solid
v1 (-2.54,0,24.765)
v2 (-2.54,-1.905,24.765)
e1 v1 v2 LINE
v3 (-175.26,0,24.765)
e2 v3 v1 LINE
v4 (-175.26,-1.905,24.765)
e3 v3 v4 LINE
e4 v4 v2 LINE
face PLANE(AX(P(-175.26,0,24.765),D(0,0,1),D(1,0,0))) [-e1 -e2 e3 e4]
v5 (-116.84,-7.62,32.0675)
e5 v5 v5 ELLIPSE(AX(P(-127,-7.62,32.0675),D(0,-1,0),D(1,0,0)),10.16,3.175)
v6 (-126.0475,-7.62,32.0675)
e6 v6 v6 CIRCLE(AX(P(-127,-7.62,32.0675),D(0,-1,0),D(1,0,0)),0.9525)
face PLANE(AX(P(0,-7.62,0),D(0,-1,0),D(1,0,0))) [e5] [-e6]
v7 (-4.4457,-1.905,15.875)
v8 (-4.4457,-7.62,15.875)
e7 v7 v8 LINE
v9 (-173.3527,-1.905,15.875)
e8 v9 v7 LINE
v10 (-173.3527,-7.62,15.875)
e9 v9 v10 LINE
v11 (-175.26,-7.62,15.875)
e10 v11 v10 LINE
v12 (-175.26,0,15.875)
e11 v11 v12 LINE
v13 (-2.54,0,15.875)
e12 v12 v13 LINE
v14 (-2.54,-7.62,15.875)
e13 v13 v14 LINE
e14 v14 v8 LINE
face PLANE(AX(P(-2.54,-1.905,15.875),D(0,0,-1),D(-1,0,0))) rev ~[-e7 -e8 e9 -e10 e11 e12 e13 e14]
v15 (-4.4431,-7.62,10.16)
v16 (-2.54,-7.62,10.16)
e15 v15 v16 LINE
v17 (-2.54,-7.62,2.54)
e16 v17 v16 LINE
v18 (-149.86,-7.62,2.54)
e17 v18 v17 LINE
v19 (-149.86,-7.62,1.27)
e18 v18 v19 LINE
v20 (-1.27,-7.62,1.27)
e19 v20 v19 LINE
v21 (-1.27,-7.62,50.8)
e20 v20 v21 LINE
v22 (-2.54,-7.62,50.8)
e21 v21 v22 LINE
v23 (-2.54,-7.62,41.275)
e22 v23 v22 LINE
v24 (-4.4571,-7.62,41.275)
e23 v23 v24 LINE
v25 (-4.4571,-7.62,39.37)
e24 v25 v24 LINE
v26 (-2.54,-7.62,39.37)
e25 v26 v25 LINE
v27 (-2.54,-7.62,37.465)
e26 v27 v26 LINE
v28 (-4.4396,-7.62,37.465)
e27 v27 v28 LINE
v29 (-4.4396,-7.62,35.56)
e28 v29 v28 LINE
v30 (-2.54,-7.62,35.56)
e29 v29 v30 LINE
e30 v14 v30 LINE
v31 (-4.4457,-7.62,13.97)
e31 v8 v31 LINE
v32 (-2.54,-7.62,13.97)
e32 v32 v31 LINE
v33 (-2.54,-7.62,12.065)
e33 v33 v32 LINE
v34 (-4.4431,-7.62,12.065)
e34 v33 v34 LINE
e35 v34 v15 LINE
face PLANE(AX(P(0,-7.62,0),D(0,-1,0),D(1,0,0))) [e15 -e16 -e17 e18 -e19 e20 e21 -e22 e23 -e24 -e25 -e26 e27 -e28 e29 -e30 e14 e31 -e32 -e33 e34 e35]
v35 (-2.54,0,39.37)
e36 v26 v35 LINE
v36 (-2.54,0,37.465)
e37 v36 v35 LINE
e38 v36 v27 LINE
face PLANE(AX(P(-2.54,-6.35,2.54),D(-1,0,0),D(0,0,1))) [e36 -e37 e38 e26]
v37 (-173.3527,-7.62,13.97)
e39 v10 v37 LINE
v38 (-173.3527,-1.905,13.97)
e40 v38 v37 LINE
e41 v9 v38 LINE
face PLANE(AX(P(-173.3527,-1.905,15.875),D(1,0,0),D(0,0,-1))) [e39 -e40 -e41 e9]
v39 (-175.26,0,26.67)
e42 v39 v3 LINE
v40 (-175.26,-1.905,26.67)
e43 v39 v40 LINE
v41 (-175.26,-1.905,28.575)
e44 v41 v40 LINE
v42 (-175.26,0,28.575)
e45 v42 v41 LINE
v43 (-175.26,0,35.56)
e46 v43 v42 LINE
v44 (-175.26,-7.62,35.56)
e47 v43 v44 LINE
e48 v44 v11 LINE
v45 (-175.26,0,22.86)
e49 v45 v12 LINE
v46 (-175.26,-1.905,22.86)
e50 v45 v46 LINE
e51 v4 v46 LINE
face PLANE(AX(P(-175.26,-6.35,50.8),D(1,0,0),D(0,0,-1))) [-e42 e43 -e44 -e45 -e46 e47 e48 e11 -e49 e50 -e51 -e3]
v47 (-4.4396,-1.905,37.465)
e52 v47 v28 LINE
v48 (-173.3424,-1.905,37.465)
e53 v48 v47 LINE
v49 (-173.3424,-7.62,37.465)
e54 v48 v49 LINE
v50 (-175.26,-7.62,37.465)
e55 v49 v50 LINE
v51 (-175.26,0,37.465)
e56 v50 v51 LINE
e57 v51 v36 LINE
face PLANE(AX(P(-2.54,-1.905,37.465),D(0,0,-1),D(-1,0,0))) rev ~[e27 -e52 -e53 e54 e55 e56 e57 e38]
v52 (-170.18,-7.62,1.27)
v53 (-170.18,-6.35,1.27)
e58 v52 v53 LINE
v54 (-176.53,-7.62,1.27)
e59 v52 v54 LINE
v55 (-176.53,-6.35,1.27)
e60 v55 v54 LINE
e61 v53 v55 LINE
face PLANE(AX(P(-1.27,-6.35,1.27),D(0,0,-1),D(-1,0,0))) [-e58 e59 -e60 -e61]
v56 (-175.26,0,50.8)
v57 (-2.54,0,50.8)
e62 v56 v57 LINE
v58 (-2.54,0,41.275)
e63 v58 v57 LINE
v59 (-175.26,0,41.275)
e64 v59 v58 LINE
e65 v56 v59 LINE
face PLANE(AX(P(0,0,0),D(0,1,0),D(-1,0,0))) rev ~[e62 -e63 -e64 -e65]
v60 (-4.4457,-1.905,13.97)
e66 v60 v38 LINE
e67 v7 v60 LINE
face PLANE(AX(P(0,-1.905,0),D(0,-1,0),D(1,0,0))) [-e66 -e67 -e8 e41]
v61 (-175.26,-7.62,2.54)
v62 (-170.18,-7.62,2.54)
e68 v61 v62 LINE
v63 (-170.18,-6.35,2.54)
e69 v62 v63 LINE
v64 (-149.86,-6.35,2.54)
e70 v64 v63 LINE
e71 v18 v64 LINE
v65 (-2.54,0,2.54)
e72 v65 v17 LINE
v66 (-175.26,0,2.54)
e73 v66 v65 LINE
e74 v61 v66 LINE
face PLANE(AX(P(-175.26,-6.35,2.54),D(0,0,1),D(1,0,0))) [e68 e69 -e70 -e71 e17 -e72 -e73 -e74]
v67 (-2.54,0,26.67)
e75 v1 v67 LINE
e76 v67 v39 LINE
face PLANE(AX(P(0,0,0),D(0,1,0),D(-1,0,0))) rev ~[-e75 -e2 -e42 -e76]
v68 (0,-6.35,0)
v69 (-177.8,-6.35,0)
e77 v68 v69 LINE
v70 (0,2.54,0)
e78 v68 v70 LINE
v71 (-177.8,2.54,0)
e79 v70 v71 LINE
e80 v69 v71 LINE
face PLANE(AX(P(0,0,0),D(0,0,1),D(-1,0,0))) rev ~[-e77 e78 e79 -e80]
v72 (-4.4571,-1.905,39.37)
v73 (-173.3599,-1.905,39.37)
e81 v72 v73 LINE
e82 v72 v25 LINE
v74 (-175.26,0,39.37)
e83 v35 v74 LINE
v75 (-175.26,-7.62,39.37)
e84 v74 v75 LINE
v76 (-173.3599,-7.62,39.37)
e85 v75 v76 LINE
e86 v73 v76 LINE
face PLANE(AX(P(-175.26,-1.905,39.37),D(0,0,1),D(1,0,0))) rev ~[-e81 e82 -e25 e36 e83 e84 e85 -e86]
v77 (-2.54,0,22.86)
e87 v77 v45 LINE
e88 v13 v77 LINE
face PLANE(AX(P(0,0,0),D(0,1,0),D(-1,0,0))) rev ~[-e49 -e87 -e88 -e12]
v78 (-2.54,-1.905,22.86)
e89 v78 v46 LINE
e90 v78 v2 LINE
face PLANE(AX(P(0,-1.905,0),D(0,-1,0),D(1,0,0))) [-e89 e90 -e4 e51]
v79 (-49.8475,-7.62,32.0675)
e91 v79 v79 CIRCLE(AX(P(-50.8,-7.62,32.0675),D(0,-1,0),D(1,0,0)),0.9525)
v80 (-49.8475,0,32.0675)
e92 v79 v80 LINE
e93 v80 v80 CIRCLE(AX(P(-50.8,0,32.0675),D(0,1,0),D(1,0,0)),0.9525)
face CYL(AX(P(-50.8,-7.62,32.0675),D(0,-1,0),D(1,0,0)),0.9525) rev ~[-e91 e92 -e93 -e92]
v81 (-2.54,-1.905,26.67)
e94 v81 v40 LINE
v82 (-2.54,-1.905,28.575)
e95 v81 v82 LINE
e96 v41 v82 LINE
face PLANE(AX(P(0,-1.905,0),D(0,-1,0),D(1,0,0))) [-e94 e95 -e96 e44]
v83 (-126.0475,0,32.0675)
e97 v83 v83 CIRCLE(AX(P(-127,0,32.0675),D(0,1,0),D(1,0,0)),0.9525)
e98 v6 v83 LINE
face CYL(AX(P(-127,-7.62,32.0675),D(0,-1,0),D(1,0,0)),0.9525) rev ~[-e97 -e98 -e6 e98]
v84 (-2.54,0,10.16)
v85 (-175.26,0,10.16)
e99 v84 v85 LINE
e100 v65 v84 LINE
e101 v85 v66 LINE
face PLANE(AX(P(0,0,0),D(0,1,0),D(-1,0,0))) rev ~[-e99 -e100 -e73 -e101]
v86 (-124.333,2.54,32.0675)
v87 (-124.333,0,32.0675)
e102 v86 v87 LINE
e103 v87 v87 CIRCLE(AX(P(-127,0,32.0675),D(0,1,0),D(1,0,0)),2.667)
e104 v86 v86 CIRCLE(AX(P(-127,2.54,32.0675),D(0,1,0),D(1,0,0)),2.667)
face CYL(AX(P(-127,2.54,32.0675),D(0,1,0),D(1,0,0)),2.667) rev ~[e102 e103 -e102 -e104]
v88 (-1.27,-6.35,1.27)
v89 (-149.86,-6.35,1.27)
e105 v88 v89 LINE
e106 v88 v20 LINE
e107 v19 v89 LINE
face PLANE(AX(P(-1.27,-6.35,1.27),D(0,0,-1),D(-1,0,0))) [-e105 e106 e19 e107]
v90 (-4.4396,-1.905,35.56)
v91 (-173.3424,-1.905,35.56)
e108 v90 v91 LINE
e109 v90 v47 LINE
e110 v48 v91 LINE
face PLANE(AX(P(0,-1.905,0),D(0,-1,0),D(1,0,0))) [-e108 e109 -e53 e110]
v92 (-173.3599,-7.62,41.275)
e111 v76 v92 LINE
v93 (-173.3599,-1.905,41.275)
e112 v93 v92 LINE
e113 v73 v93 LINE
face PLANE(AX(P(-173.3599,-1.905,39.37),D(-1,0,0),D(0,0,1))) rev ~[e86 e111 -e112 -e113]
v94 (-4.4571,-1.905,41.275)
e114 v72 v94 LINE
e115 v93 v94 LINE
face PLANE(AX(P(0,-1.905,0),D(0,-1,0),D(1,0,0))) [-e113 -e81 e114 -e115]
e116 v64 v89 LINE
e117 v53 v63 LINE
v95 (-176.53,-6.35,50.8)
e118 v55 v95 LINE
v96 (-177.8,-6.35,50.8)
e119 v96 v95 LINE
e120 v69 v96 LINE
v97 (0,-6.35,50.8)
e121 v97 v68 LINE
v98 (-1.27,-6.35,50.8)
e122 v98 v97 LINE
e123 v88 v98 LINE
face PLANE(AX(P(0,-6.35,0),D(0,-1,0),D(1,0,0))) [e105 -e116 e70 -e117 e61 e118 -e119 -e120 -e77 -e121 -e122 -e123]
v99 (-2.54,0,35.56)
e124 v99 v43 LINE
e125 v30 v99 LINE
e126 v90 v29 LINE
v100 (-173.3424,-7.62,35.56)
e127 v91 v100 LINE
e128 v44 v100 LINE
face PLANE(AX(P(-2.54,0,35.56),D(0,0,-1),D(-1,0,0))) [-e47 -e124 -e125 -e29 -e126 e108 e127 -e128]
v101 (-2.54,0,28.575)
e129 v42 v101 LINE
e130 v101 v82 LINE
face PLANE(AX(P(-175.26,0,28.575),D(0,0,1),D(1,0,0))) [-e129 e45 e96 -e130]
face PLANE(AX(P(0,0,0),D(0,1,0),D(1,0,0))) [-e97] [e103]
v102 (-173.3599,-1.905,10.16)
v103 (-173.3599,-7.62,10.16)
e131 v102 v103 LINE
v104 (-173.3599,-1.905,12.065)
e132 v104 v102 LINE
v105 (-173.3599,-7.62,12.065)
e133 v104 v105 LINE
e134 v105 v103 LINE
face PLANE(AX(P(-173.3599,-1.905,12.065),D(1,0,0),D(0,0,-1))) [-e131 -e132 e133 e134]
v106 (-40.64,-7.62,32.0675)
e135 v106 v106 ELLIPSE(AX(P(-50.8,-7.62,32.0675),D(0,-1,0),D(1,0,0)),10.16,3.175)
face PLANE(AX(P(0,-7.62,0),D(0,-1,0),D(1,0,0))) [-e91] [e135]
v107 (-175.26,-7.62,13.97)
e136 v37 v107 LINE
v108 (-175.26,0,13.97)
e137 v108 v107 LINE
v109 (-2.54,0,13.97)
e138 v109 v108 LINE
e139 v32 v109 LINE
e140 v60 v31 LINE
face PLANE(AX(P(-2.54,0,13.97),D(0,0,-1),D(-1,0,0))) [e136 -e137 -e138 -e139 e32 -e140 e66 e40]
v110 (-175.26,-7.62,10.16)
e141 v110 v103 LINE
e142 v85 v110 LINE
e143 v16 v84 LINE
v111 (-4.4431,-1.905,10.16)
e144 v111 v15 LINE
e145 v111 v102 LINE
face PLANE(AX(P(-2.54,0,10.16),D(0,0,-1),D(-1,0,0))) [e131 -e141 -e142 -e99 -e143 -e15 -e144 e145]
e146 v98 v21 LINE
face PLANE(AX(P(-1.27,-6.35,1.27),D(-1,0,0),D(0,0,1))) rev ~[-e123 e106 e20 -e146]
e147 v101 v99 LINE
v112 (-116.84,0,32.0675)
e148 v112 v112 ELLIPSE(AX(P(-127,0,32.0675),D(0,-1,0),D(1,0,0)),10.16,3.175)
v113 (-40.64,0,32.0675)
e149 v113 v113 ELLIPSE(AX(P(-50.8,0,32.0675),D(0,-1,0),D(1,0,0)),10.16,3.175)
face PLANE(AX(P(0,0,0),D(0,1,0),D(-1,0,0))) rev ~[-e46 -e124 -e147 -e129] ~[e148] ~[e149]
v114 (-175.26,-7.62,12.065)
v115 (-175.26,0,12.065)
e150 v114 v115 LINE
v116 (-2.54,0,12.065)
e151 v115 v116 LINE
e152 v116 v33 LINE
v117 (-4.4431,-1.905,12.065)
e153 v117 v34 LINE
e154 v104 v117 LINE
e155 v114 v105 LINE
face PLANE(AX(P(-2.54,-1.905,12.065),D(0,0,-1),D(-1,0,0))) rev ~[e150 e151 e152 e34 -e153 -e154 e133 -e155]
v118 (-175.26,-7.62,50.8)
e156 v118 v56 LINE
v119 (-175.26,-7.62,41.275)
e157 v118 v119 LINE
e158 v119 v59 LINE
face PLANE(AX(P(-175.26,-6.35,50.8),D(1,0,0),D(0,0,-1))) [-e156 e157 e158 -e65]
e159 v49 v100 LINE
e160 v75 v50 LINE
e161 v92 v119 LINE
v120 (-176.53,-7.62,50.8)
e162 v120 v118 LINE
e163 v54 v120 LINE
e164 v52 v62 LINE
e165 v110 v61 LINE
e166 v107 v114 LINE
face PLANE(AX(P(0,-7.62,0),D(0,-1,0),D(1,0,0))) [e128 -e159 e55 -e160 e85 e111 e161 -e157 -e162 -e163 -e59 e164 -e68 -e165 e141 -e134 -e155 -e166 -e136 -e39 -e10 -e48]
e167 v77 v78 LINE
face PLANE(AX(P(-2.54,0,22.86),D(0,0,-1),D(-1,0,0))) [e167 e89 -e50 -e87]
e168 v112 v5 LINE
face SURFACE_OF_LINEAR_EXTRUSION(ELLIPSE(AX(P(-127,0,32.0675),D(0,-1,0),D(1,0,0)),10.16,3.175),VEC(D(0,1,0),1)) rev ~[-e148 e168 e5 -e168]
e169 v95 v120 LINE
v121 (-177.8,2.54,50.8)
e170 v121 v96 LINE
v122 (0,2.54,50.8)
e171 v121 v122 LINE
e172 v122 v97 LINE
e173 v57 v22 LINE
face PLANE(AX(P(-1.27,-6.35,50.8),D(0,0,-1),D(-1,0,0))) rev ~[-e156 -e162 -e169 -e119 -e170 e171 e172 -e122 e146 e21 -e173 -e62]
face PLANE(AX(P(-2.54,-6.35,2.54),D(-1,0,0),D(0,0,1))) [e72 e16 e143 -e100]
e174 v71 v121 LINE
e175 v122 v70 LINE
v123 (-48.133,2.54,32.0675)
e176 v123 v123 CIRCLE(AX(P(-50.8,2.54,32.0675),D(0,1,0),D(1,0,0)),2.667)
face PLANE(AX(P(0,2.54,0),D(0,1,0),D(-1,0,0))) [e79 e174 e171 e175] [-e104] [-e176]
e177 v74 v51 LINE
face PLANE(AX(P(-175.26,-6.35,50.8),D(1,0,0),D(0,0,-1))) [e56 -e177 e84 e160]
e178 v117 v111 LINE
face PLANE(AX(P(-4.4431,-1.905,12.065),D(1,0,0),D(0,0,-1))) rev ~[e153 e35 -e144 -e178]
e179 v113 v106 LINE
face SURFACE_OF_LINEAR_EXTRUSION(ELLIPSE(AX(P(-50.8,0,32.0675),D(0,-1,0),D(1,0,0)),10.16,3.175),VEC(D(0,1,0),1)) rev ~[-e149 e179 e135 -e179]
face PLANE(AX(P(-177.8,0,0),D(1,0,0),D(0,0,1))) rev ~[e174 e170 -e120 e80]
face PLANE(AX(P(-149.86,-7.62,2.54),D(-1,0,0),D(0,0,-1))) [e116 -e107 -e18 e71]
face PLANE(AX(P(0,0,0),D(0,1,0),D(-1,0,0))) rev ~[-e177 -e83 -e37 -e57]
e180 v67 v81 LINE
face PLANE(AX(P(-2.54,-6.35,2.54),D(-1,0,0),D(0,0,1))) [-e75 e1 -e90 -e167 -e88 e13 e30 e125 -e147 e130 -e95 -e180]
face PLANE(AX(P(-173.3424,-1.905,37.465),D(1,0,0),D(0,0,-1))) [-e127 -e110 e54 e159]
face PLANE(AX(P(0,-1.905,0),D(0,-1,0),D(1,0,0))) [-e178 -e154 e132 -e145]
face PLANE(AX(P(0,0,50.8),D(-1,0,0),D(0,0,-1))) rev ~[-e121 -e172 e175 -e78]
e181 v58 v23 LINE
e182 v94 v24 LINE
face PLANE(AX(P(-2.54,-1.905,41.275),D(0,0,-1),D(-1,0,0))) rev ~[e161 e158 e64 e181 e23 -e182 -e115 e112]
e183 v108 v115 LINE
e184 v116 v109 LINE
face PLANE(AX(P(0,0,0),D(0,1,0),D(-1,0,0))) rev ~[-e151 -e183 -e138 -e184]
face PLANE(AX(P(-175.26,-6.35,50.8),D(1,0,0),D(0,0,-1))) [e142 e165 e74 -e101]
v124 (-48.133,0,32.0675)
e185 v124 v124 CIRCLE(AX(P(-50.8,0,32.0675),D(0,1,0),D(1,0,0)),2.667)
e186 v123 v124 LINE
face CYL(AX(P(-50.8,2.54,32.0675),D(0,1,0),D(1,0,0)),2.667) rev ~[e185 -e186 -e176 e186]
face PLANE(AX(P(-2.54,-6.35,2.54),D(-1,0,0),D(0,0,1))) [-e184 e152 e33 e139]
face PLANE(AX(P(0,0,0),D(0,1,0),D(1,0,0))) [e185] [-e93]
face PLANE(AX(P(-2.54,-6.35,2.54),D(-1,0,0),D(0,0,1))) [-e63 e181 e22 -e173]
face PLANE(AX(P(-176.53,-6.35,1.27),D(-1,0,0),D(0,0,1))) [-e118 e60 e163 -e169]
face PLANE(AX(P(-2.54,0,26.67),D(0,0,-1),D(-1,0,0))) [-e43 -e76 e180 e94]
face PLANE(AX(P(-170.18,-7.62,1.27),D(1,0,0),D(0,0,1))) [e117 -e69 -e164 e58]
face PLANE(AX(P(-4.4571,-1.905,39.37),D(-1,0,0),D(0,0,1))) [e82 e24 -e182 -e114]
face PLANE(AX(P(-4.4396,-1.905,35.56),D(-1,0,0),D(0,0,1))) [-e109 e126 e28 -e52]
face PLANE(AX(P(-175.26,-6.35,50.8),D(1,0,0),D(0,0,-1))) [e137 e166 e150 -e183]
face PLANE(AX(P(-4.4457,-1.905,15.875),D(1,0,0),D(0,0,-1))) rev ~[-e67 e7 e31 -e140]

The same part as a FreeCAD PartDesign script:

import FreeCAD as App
import Part
import Sketcher

V = App.Vector
Q = App.Units.Quantity

doc = App.newDocument("Part")
body = doc.addObject("PartDesign::Body", "Body")

# Sketch on XZ plane
sketch1 = body.newObject("Sketcher::SketchObject", "Sketch")
sketch1.AttachmentSupport = (doc.getObject("XZ_Plane"), [""])
sketch1.MapMode = "FlatFace"
sketch1.addGeometry([
    Part.LineSegment(V(0, 51, 0), V(0, 0, 0)),
    Part.LineSegment(V(0, 0, 0), V(-178, 0, 0)),
    Part.LineSegment(V(-178, 0, 0), V(-178, 51, 0)),
    Part.LineSegment(V(-178, 51, 0), V(0, 51, 0)),
], False)
sketch1.addConstraint([
    Sketcher.Constraint("Coincident", 0, 2, 1, 1),
    Sketcher.Constraint("Coincident", 1, 2, 2, 1),
    Sketcher.Constraint("Coincident", 2, 2, 3, 1),
    Sketcher.Constraint("Coincident", 3, 2, 0, 1),
    Sketcher.Constraint("Vertical", 0),
    Sketcher.Constraint("Horizontal", 1),
    Sketcher.Constraint("Vertical", 2),
    Sketcher.Constraint("Horizontal", 3),
    Sketcher.Constraint("Coincident", 0, 2, -1, 1),
    Sketcher.Constraint("DistanceX", 1, 2, 1, 1, Q("7 in")),
    Sketcher.Constraint("DistanceY", 0, 2, 0, 1, Q("2 in")),
])
pad1 = body.newObject("PartDesign::Pad", "Pad")
pad1.Profile = sketch1
pad1.Length = Q("0.1 in")
pad1.Reversed = True

# Sketch on XZ plane
sketch2 = body.newObject("Sketcher::SketchObject", "Sketch001")
sketch2.AttachmentSupport = (doc.getObject("XZ_Plane"), [""])
sketch2.MapMode = "FlatFace"
sketch2.addGeometry([
    Part.LineSegment(V(-177.8, 0, 0), V(0, 0, 0)),  # 0
    Part.LineSegment(V(0, 0, 0), V(0, 50.8, 0)),  # 1
    Part.LineSegment(V(0, 50.8, 0), V(-2.5, 50.8, 0)),  # 2
    Part.LineSegment(V(-2.5, 50.8, 0), V(-2.5, 2.5, 0)),  # 3
    Part.LineSegment(V(-2.5, 2.5, 0), V(-175.3, 2.5, 0)),  # 4
    Part.LineSegment(V(-175.3, 2.5, 0), V(-175.3, 50.8, 0)),  # 5
    Part.LineSegment(V(-175.3, 50.8, 0), V(-177.8, 50.8, 0)),  # 6
    Part.LineSegment(V(-177.8, 50.8, 0), V(-177.8, 0, 0)),  # 7
], False)
sketch2.addConstraint([
    Sketcher.Constraint("Coincident", 0, 2, 1, 1),
    Sketcher.Constraint("Coincident", 1, 2, 2, 1),
    Sketcher.Constraint("Coincident", 2, 2, 3, 1),
    Sketcher.Constraint("Coincident", 3, 2, 4, 1),
    Sketcher.Constraint("Coincident", 4, 2, 5, 1),
    Sketcher.Constraint("Coincident", 5, 2, 6, 1),
    Sketcher.Constraint("Coincident", 6, 2, 7, 1),
    Sketcher.Constraint("Coincident", 7, 2, 0, 1),
    Sketcher.Constraint("Horizontal", 0),
    Sketcher.Constraint("Vertical", 1),
    Sketcher.Constraint("Horizontal", 2),
    Sketcher.Constraint("Vertical", 3),
    Sketcher.Constraint("Horizontal", 4),
    Sketcher.Constraint("Vertical", 5),
    Sketcher.Constraint("Horizontal", 6),
    Sketcher.Constraint("Vertical", 7),
    Sketcher.Constraint("Coincident", 0, 2, -1, 1),
    Sketcher.Constraint("Horizontal", 2, 2, 5, 2),
    Sketcher.Constraint("Equal", 2, 6),
    Sketcher.Constraint("DistanceX", 2, 2, 2, 1, Q("0.1 in")),
    Sketcher.Constraint("DistanceY", -1, 1, 3, 2, Q("0.1 in")),
    Sketcher.Constraint("DistanceX", 0, 1, 0, 2, Q("7 in")),
    Sketcher.Constraint("DistanceY", 1, 1, 1, 2, Q("2 in")),
])
pad2 = body.newObject("PartDesign::Pad", "Pad001")
pad2.Profile = sketch2
pad2.Length = Q("0.25 in")

# Sketch on XZ plane
sketch3 = body.newObject("Sketcher::SketchObject", "Sketch002")
sketch3.AttachmentSupport = (doc.getObject("XZ_Plane"), [""])
sketch3.MapMode = "FlatFace"
sketch3.AttachmentOffset = App.Placement(V(0, 0, 0.25 * 25.4), App.Rotation())
sketch3.addGeometry([
    Part.LineSegment(V(-1.3, 1.3, 0), V(-1.3, 50.8, 0)),  # 0
    Part.LineSegment(V(-1.3, 50.8, 0), V(-2.5, 50.8, 0)),  # 1
    Part.LineSegment(V(-2.5, 50.8, 0), V(-2.5, 2.5, 0)),  # 2
    Part.LineSegment(V(-2.5, 2.5, 0), V(-175.3, 2.5, 0)),  # 3
    Part.LineSegment(V(-175.3, 2.5, 0), V(-175.3, 50.8, 0)),  # 4
    Part.LineSegment(V(-175.3, 50.8, 0), V(-176.5, 50.8, 0)),  # 5
    Part.LineSegment(V(-176.5, 50.8, 0), V(-176.5, 1.3, 0)),  # 6
    Part.LineSegment(V(-176.5, 1.3, 0), V(-1.3, 1.3, 0)),  # 7
], False)
sketch3.addConstraint([
    Sketcher.Constraint("Coincident", 0, 2, 1, 1),
    Sketcher.Constraint("Coincident", 1, 2, 2, 1),
    Sketcher.Constraint("Coincident", 2, 2, 3, 1),
    Sketcher.Constraint("Coincident", 3, 2, 4, 1),
    Sketcher.Constraint("Coincident", 4, 2, 5, 1),
    Sketcher.Constraint("Coincident", 5, 2, 6, 1),
    Sketcher.Constraint("Coincident", 6, 2, 7, 1),
    Sketcher.Constraint("Coincident", 7, 2, 0, 1),
    Sketcher.Constraint("Vertical", 0),
    Sketcher.Constraint("Horizontal", 1),
    Sketcher.Constraint("Vertical", 2),
    Sketcher.Constraint("Horizontal", 3),
    Sketcher.Constraint("Vertical", 4),
    Sketcher.Constraint("Horizontal", 5),
    Sketcher.Constraint("Vertical", 6),
    Sketcher.Constraint("Horizontal", 7),
    Sketcher.Constraint("Horizontal", 1, 2, 4, 2),
    Sketcher.Constraint("Equal", 1, 5),
    Sketcher.Constraint("DistanceX", 1, 2, 1, 1, Q("0.05 in")),
    Sketcher.Constraint("DistanceX", 0, 2, -1, 1, Q("0.05 in")),
    Sketcher.Constraint("DistanceY", -1, 1, 6, 2, Q("0.05 in")),
    Sketcher.Constraint("DistanceY", 6, 2, 3, 2, Q("0.05 in")),
    Sketcher.Constraint("DistanceX", 3, 2, 3, 1, Q("6.8 in")),
    Sketcher.Constraint("DistanceY", 2, 2, 2, 1, Q("1.9 in")),
])
pad3 = body.newObject("PartDesign::Pad", "Pad002")
pad3.Profile = sketch3
pad3.Length = Q("0.05 in")

# Sketch on XZ plane
sketch4 = body.newObject("Sketcher::SketchObject", "Sketch003")
sketch4.AttachmentSupport = (doc.getObject("XZ_Plane"), [""])
sketch4.MapMode = "FlatFace"
sketch4.addGeometry([
    Part.LineSegment(V(-175.3, 10.2, 0), V(-2.5, 10.2, 0)),  # 0
    Part.LineSegment(V(-2.5, 10.2, 0), V(-2.5, 12.1, 0)),  # 1
    Part.LineSegment(V(-2.5, 12.1, 0), V(-175.3, 12.1, 0)),  # 2
    Part.LineSegment(V(-175.3, 12.1, 0), V(-175.3, 10.2, 0)),  # 3
    Part.LineSegment(V(-175.3, 14, 0), V(-2.5, 14, 0)),  # 4
    Part.LineSegment(V(-2.5, 14, 0), V(-2.5, 15.9, 0)),  # 5
    Part.LineSegment(V(-2.5, 15.9, 0), V(-175.3, 15.9, 0)),  # 6
    Part.LineSegment(V(-175.3, 15.9, 0), V(-175.3, 14, 0)),  # 7
    Part.LineSegment(V(-175.3, 22.9, 0), V(-2.5, 22.9, 0)),  # 8
    Part.LineSegment(V(-2.5, 22.9, 0), V(-2.5, 24.8, 0)),  # 9
    Part.LineSegment(V(-2.5, 24.8, 0), V(-175.3, 24.8, 0)),  # 10
    Part.LineSegment(V(-175.3, 24.8, 0), V(-175.3, 22.9, 0)),  # 11
    Part.LineSegment(V(-175.3, 26.7, 0), V(-2.5, 26.7, 0)),  # 12
    Part.LineSegment(V(-2.5, 26.7, 0), V(-2.5, 28.6, 0)),  # 13
    Part.LineSegment(V(-2.5, 28.6, 0), V(-175.3, 28.6, 0)),  # 14
    Part.LineSegment(V(-175.3, 28.6, 0), V(-175.3, 26.7, 0)),  # 15
    Part.LineSegment(V(-175.3, 35.6, 0), V(-2.5, 35.6, 0)),  # 16
    Part.LineSegment(V(-2.5, 35.6, 0), V(-2.5, 37.5, 0)),  # 17
    Part.LineSegment(V(-2.5, 37.5, 0), V(-175.3, 37.5, 0)),  # 18
    Part.LineSegment(V(-175.3, 37.5, 0), V(-175.3, 35.6, 0)),  # 19
    Part.LineSegment(V(-175.3, 39.4, 0), V(-2.5, 39.4, 0)),  # 20
    Part.LineSegment(V(-2.5, 39.4, 0), V(-2.5, 41.3, 0)),  # 21
    Part.LineSegment(V(-2.5, 41.3, 0), V(-175.3, 41.3, 0)),  # 22
    Part.LineSegment(V(-175.3, 41.3, 0), V(-175.3, 39.4, 0)),  # 23
], False)
sketch4.addConstraint([
    Sketcher.Constraint("Coincident", 0, 2, 1, 1),
    Sketcher.Constraint("Coincident", 1, 2, 2, 1),
    Sketcher.Constraint("Coincident", 2, 2, 3, 1),
    Sketcher.Constraint("Coincident", 3, 2, 0, 1),
    Sketcher.Constraint("Coincident", 4, 2, 5, 1),
    Sketcher.Constraint("Coincident", 5, 2, 6, 1),
    Sketcher.Constraint("Coincident", 6, 2, 7, 1),
    Sketcher.Constraint("Coincident", 7, 2, 4, 1),
    Sketcher.Constraint("Coincident", 8, 2, 9, 1),
    Sketcher.Constraint("Coincident", 9, 2, 10, 1),
    Sketcher.Constraint("Coincident", 10, 2, 11, 1),
    Sketcher.Constraint("Coincident", 11, 2, 8, 1),
    Sketcher.Constraint("Coincident", 12, 2, 13, 1),
    Sketcher.Constraint("Coincident", 13, 2, 14, 1),
    Sketcher.Constraint("Coincident", 14, 2, 15, 1),
    Sketcher.Constraint("Coincident", 15, 2, 12, 1),
    Sketcher.Constraint("Coincident", 16, 2, 17, 1),
    Sketcher.Constraint("Coincident", 17, 2, 18, 1),
    Sketcher.Constraint("Coincident", 18, 2, 19, 1),
    Sketcher.Constraint("Coincident", 19, 2, 16, 1),
    Sketcher.Constraint("Coincident", 20, 2, 21, 1),
    Sketcher.Constraint("Coincident", 21, 2, 22, 1),
    Sketcher.Constraint("Coincident", 22, 2, 23, 1),
    Sketcher.Constraint("Coincident", 23, 2, 20, 1),
    Sketcher.Constraint("Horizontal", 0),
    Sketcher.Constraint("Vertical", 1),
    Sketcher.Constraint("Horizontal", 2),
    Sketcher.Constraint("Vertical", 3),
    Sketcher.Constraint("Horizontal", 4),
    Sketcher.Constraint("Vertical", 5),
    Sketcher.Constraint("Horizontal", 6),
    Sketcher.Constraint("Vertical", 7),
    Sketcher.Constraint("Horizontal", 8),
    Sketcher.Constraint("Vertical", 9),
    Sketcher.Constraint("Horizontal", 10),
    Sketcher.Constraint("Vertical", 11),
    Sketcher.Constraint("Horizontal", 12),
    Sketcher.Constraint("Vertical", 13),
    Sketcher.Constraint("Horizontal", 14),
    Sketcher.Constraint("Vertical", 15),
    Sketcher.Constraint("Horizontal", 16),
    Sketcher.Constraint("Vertical", 17),
    Sketcher.Constraint("Horizontal", 18),
    Sketcher.Constraint("Vertical", 19),
    Sketcher.Constraint("Horizontal", 20),
    Sketcher.Constraint("Vertical", 21),
    Sketcher.Constraint("Horizontal", 22),
    Sketcher.Constraint("Vertical", 23),
    Sketcher.Constraint("Vertical", 1, 2, 4, 2),
    Sketcher.Constraint("Vertical", 3, 2, 6, 2),
    Sketcher.Constraint("Vertical", 5, 2, 8, 2),
    Sketcher.Constraint("Vertical", 7, 2, 10, 2),
    Sketcher.Constraint("Vertical", 9, 2, 12, 2),
    Sketcher.Constraint("Vertical", 11, 2, 14, 2),
    Sketcher.Constraint("Vertical", 13, 2, 16, 2),
    Sketcher.Constraint("Vertical", 15, 2, 18, 2),
    Sketcher.Constraint("Vertical", 17, 2, 20, 2),
    Sketcher.Constraint("Vertical", 19, 2, 22, 2),
    Sketcher.Constraint("Equal", 3, 5),
    Sketcher.Constraint("Equal", 7, 9),
    Sketcher.Constraint("Equal", 11, 13),
    Sketcher.Constraint("Equal", 15, 17),
    Sketcher.Constraint("Equal", 19, 21),
    Sketcher.Constraint("DistanceY", 1, 1, 1, 2, Q("0.075 in")),
    Sketcher.Constraint("DistanceX", 0, 1, 0, 2, Q("6.8 in")),
    Sketcher.Constraint("DistanceY", 1, 2, 4, 2, Q("0.075 in")),
    Sketcher.Constraint("DistanceY", 1, 2, 8, 2, Q("0.425 in")),
    Sketcher.Constraint("DistanceY", 9, 2, 12, 2, Q("0.075 in")),
    Sketcher.Constraint("DistanceY", 9, 2, 16, 2, Q("0.425 in")),
    Sketcher.Constraint("DistanceY", 17, 2, 20, 2, Q("0.075 in")),
    Sketcher.Constraint("DistanceX", 0, 2, -1, 1, Q("0.1 in")),
    Sketcher.Constraint("DistanceY", -1, 1, 0, 2, Q("0.4 in")),
])
pad4 = body.newObject("PartDesign::Pad", "Pad003")
pad4.Profile = sketch4
pad4.Length = Q("0.075 in")

# Sketch on XZ plane
sketch5 = body.newObject("Sketcher::SketchObject", "Sketch004")
sketch5.AttachmentSupport = (doc.getObject("XZ_Plane"), [""])
sketch5.MapMode = "FlatFace"
sketch5.AttachmentOffset = App.Placement(V(0, 0, 0.075 * 25.4), App.Rotation())
sketch5.addGeometry([
    Part.LineSegment(V(-2.5, 39.4, 0), V(-2.5, 41.3, 0)),  # 0
    Part.LineSegment(V(-2.5, 41.3, 0), V(-4.5, 41.3, 0)),  # 1
    Part.LineSegment(V(-4.5, 41.3, 0), V(-4.5, 39.4, 0)),  # 2
    Part.LineSegment(V(-4.5, 39.4, 0), V(-2.5, 39.4, 0)),  # 3
    Part.LineSegment(V(-173.4, 39.4, 0), V(-173.4, 41.3, 0)),  # 4
    Part.LineSegment(V(-173.4, 41.3, 0), V(-175.3, 41.3, 0)),  # 5
    Part.LineSegment(V(-175.3, 41.3, 0), V(-175.3, 39.4, 0)),  # 6
    Part.LineSegment(V(-175.3, 39.4, 0), V(-173.4, 39.4, 0)),  # 7
], False)
sketch5.addConstraint([
    Sketcher.Constraint("Coincident", 0, 2, 1, 1),
    Sketcher.Constraint("Coincident", 1, 2, 2, 1),
    Sketcher.Constraint("Coincident", 2, 2, 3, 1),
    Sketcher.Constraint("Coincident", 3, 2, 0, 1),
    Sketcher.Constraint("Coincident", 4, 2, 5, 1),
    Sketcher.Constraint("Coincident", 5, 2, 6, 1),
    Sketcher.Constraint("Coincident", 6, 2, 7, 1),
    Sketcher.Constraint("Coincident", 7, 2, 4, 1),
    Sketcher.Constraint("Vertical", 0),
    Sketcher.Constraint("Horizontal", 1),
    Sketcher.Constraint("Vertical", 2),
    Sketcher.Constraint("Horizontal", 3),
    Sketcher.Constraint("Vertical", 4),
    Sketcher.Constraint("Horizontal", 5),
    Sketcher.Constraint("Vertical", 6),
    Sketcher.Constraint("Horizontal", 7),
    Sketcher.Constraint("Horizontal", 1, 2, 4, 2),
    Sketcher.Constraint("Horizontal", 3, 2, 6, 2),
    Sketcher.Constraint("DistanceX", 0, 2, -1, 1, Q("0.1 in")),
    Sketcher.Constraint("DistanceX", 5, 2, -1, 1, Q("6.9 in")),
    Sketcher.Constraint("DistanceY", 0, 1, 0, 2, Q("0.075 in")),
    Sketcher.Constraint("DistanceY", -1, 1, 2, 2, Q("1.55 in")),
    Sketcher.Constraint("DistanceX", 5, 2, 5, 1, Q("0.0748 in")),
    Sketcher.Constraint("DistanceX", 1, 2, 1, 1, 1.917),
])
pad5 = body.newObject("PartDesign::Pad", "Pad004")
pad5.Profile = sketch5
pad5.Length = Q("0.225 in")

# Sketch on XZ plane
sketch6 = body.newObject("Sketcher::SketchObject", "Sketch005")
sketch6.AttachmentSupport = (doc.getObject("XZ_Plane"), [""])
sketch6.MapMode = "FlatFace"
sketch6.AttachmentOffset = App.Placement(V(0, 0, 0.075 * 25.4), App.Rotation())
sketch6.addGeometry([
    Part.LineSegment(V(-175.3, 37.5, 0), V(-175.3, 35.6, 0)),  # 0
    Part.LineSegment(V(-175.3, 35.6, 0), V(-173.3, 35.6, 0)),  # 1
    Part.LineSegment(V(-173.3, 35.6, 0), V(-173.3, 37.5, 0)),  # 2
    Part.LineSegment(V(-173.3, 37.5, 0), V(-175.3, 37.5, 0)),  # 3
    Part.LineSegment(V(-4.4, 37.5, 0), V(-4.4, 35.6, 0)),  # 4
    Part.LineSegment(V(-4.4, 35.6, 0), V(-2.5, 35.6, 0)),  # 5
    Part.LineSegment(V(-2.5, 35.6, 0), V(-2.5, 37.5, 0)),  # 6
    Part.LineSegment(V(-2.5, 37.5, 0), V(-4.4, 37.5, 0)),  # 7
], False)
sketch6.addConstraint([
    Sketcher.Constraint("Coincident", 0, 2, 1, 1),
    Sketcher.Constraint("Coincident", 1, 2, 2, 1),
    Sketcher.Constraint("Coincident", 2, 2, 3, 1),
    Sketcher.Constraint("Coincident", 3, 2, 0, 1),
    Sketcher.Constraint("Coincident", 4, 2, 5, 1),
    Sketcher.Constraint("Coincident", 5, 2, 6, 1),
    Sketcher.Constraint("Coincident", 6, 2, 7, 1),
    Sketcher.Constraint("Coincident", 7, 2, 4, 1),
    Sketcher.Constraint("Vertical", 0),
    Sketcher.Constraint("Horizontal", 1),
    Sketcher.Constraint("Vertical", 2),
    Sketcher.Constraint("Horizontal", 3),
    Sketcher.Constraint("Vertical", 4),
    Sketcher.Constraint("Horizontal", 5),
    Sketcher.Constraint("Vertical", 6),
    Sketcher.Constraint("Horizontal", 7),
    Sketcher.Constraint("Horizontal", 1, 2, 4, 2),
    Sketcher.Constraint("Horizontal", 3, 2, 6, 2),
    Sketcher.Constraint("DistanceX", 0, 2, -1, 1, Q("6.9 in")),
    Sketcher.Constraint("DistanceY", -1, 1, 0, 2, Q("1.4 in")),
    Sketcher.Constraint("DistanceX", 5, 2, -1, 1, Q("0.1 in")),
    Sketcher.Constraint("DistanceY", 0, 2, 0, 1, Q("0.075 in")),
    Sketcher.Constraint("DistanceX", 1, 1, 1, 2, Q("0.0755 in")),
    Sketcher.Constraint("DistanceX", 5, 1, 5, 2, 1.8996),
])
pad6 = body.newObject("PartDesign::Pad", "Pad005")
pad6.Profile = sketch6
pad6.Length = Q("0.225 in")

# Sketch on XZ plane
sketch7 = body.newObject("Sketcher::SketchObject", "Sketch006")
sketch7.AttachmentSupport = (doc.getObject("XZ_Plane"), [""])
sketch7.MapMode = "FlatFace"
sketch7.AttachmentOffset = App.Placement(V(0, 0, 0.075 * 25.4), App.Rotation())
sketch7.addGeometry([
    Part.LineSegment(V(-175.3, 14, 0), V(-173.4, 14, 0)),  # 0
    Part.LineSegment(V(-173.4, 14, 0), V(-173.4, 15.9, 0)),  # 1
    Part.LineSegment(V(-173.4, 15.9, 0), V(-175.3, 15.9, 0)),  # 2
    Part.LineSegment(V(-175.3, 15.9, 0), V(-175.3, 14, 0)),  # 3
    Part.LineSegment(V(-4.4, 14, 0), V(-2.5, 14, 0)),  # 4
    Part.LineSegment(V(-2.5, 14, 0), V(-2.5, 15.9, 0)),  # 5
    Part.LineSegment(V(-2.5, 15.9, 0), V(-4.4, 15.9, 0)),  # 6
    Part.LineSegment(V(-4.4, 15.9, 0), V(-4.4, 14, 0)),  # 7
], False)
sketch7.addConstraint([
    Sketcher.Constraint("Coincident", 0, 2, 1, 1),
    Sketcher.Constraint("Coincident", 1, 2, 2, 1),
    Sketcher.Constraint("Coincident", 2, 2, 3, 1),
    Sketcher.Constraint("Coincident", 3, 2, 0, 1),
    Sketcher.Constraint("Coincident", 4, 2, 5, 1),
    Sketcher.Constraint("Coincident", 5, 2, 6, 1),
    Sketcher.Constraint("Coincident", 6, 2, 7, 1),
    Sketcher.Constraint("Coincident", 7, 2, 4, 1),
    Sketcher.Constraint("Horizontal", 0),
    Sketcher.Constraint("Vertical", 1),
    Sketcher.Constraint("Horizontal", 2),
    Sketcher.Constraint("Vertical", 3),
    Sketcher.Constraint("Horizontal", 4),
    Sketcher.Constraint("Vertical", 5),
    Sketcher.Constraint("Horizontal", 6),
    Sketcher.Constraint("Vertical", 7),
    Sketcher.Constraint("Horizontal", 3, 2, 4, 2),
    Sketcher.Constraint("Horizontal", 2, 2, 5, 2),
    Sketcher.Constraint("DistanceX", 2, 2, -1, 1, Q("6.9 in")),
    Sketcher.Constraint("DistanceX", 4, 2, -1, 1, Q("0.1 in")),
    Sketcher.Constraint("DistanceY", 1, 1, 1, 2, Q("0.075 in")),
    Sketcher.Constraint("DistanceY", -1, 1, 0, 2, Q("0.55 in")),
    Sketcher.Constraint("DistanceX", 0, 1, 0, 2, Q("0.0751 in")),
    Sketcher.Constraint("DistanceX", 4, 1, 4, 2, 1.9057),
])
pad7 = body.newObject("PartDesign::Pad", "Pad006")
pad7.Profile = sketch7
pad7.Length = Q("0.225 in")

# Sketch on XZ plane
sketch8 = body.newObject("Sketcher::SketchObject", "Sketch007")
sketch8.AttachmentSupport = (doc.getObject("XZ_Plane"), [""])
sketch8.MapMode = "FlatFace"
sketch8.AttachmentOffset = App.Placement(V(0, 0, 0.075 * 25.4), App.Rotation())
sketch8.addGeometry([
    Part.LineSegment(V(-175.3, 12.1, 0), V(-175.3, 10.2, 0)),  # 0
    Part.LineSegment(V(-175.3, 10.2, 0), V(-173.4, 10.2, 0)),  # 1
    Part.LineSegment(V(-173.4, 10.2, 0), V(-173.4, 12.1, 0)),  # 2
    Part.LineSegment(V(-173.4, 12.1, 0), V(-175.3, 12.1, 0)),  # 3
    Part.LineSegment(V(-4.4, 12.1, 0), V(-4.4, 10.2, 0)),  # 4
    Part.LineSegment(V(-4.4, 10.2, 0), V(-2.5, 10.2, 0)),  # 5
    Part.LineSegment(V(-2.5, 10.2, 0), V(-2.5, 12.1, 0)),  # 6
    Part.LineSegment(V(-2.5, 12.1, 0), V(-4.4, 12.1, 0)),  # 7
], False)
sketch8.addConstraint([
    Sketcher.Constraint("Coincident", 0, 2, 1, 1),
    Sketcher.Constraint("Coincident", 1, 2, 2, 1),
    Sketcher.Constraint("Coincident", 2, 2, 3, 1),
    Sketcher.Constraint("Coincident", 3, 2, 0, 1),
    Sketcher.Constraint("Coincident", 4, 2, 5, 1),
    Sketcher.Constraint("Coincident", 5, 2, 6, 1),
    Sketcher.Constraint("Coincident", 6, 2, 7, 1),
    Sketcher.Constraint("Coincident", 7, 2, 4, 1),
    Sketcher.Constraint("Vertical", 0),
    Sketcher.Constraint("Horizontal", 1),
    Sketcher.Constraint("Vertical", 2),
    Sketcher.Constraint("Horizontal", 3),
    Sketcher.Constraint("Vertical", 4),
    Sketcher.Constraint("Horizontal", 5),
    Sketcher.Constraint("Vertical", 6),
    Sketcher.Constraint("Horizontal", 7),
    Sketcher.Constraint("Horizontal", 1, 2, 4, 2),
    Sketcher.Constraint("Horizontal", 3, 2, 6, 2),
    Sketcher.Constraint("DistanceX", 0, 2, -1, 1, Q("6.9 in")),
    Sketcher.Constraint("DistanceY", -1, 1, 0, 2, Q("0.4 in")),
    Sketcher.Constraint("DistanceX", 5, 2, -1, 1, Q("0.1 in")),
    Sketcher.Constraint("DistanceY", 0, 2, 0, 1, Q("0.075 in")),
    Sketcher.Constraint("DistanceX", 1, 1, 1, 2, Q("0.0748 in")),
    Sketcher.Constraint("DistanceX", 5, 1, 5, 2, 1.903),
])
pad8 = body.newObject("PartDesign::Pad", "Pad007")
pad8.Profile = sketch8
pad8.Length = Q("0.225 in")

# Sketch on XZ plane
sketch9 = body.newObject("Sketcher::SketchObject", "Sketch008")
sketch9.AttachmentSupport = (doc.getObject("XZ_Plane"), [""])
sketch9.MapMode = "FlatFace"
sketch9.addGeometry([
    Part.Ellipse(V(-116.84, 32.0675, 0), V(-127, 35.2425, 0), V(-127, 32.0675, 0)),
    Part.Ellipse(V(-40.64, 32.0675, 0), V(-50.8, 35.2425, 0), V(-50.8, 32.0675, 0)),
], False)
sketch9.addConstraint([
    Sketcher.Constraint("Block", 0),
    Sketcher.Constraint("Block", 1),
])
pad9 = body.newObject("PartDesign::Pad", "Pad008")
pad9.Profile = sketch9
pad9.Length = Q("0.3 in")

# Sketch on XZ plane
sketch10 = body.newObject("Sketcher::SketchObject", "Sketch009")
sketch10.AttachmentSupport = (doc.getObject("XZ_Plane"), [""])
sketch10.MapMode = "FlatFace"
sketch10.AttachmentOffset = App.Placement(V(0, 0, 0.3 * 25.4), App.Rotation())
sketch10.addGeometry(Part.Circle(V(-127, 32.1, 0), V(0, 0, 1), 1), False)
sketch10.addConstraint([
    Sketcher.Constraint("Diameter", 0, Q("0.075 in")),
    Sketcher.Constraint("DistanceX", 0, 3, -1, 1, Q("5 in")),
    Sketcher.Constraint("DistanceY", -1, 1, 0, 3, Q("1.2625 in")),
])
pocket1 = body.newObject("PartDesign::Pocket", "Pocket")
pocket1.Profile = sketch10
pocket1.Type = "ThroughAll"

# Sketch on XZ plane
sketch11 = body.newObject("Sketcher::SketchObject", "Sketch010")
sketch11.AttachmentSupport = (doc.getObject("XZ_Plane"), [""])
sketch11.MapMode = "FlatFace"
sketch11.AttachmentOffset = App.Placement(V(0, 0, 0.3 * 25.4), App.Rotation())
sketch11.addGeometry(Part.Circle(V(-50.8, 32.1, 0), V(0, 0, 1), 1), False)
sketch11.addConstraint([
    Sketcher.Constraint("Diameter", 0, Q("0.075 in")),
    Sketcher.Constraint("DistanceX", 0, 3, -1, 1, Q("2 in")),
    Sketcher.Constraint("DistanceY", -1, 1, 0, 3, Q("1.2625 in")),
])
pocket2 = body.newObject("PartDesign::Pocket", "Pocket001")
pocket2.Profile = sketch11
pocket2.Type = "ThroughAll"

# Sketch on XZ plane
sketch12 = body.newObject("Sketcher::SketchObject", "Sketch011")
sketch12.AttachmentSupport = (doc.getObject("XZ_Plane"), [""])
sketch12.MapMode = "FlatFace"
sketch12.AttachmentOffset = App.Placement(V(0, 0, -0.1 * 25.4), App.Rotation())
sketch12.addGeometry([
    Part.Circle(V(-127, 32.1, 0), V(0, 0, 1), 2.7),
    Part.Circle(V(-127, 32.1, 0), V(0, 0, 1), 1),
    Part.Circle(V(-50.8, 32.1, 0), V(0, 0, 1), 2.7),
    Part.Circle(V(-50.8, 32.1, 0), V(0, 0, 1), 1),
], False)
sketch12.addConstraint([
    Sketcher.Constraint("Coincident", 1, 3, 0, 3),
    Sketcher.Constraint("Coincident", 3, 3, 2, 3),
    Sketcher.Constraint("Equal", 0, 2),
    Sketcher.Constraint("Equal", 1, 3),
    Sketcher.Constraint("Horizontal", 1, 3, 2, 3),
    Sketcher.Constraint("Diameter", 0, Q("0.21 in")),
    Sketcher.Constraint("Diameter", 1, Q("0.075 in")),
    Sketcher.Constraint("DistanceX", 0, 3, -1, 1, Q("5 in")),
    Sketcher.Constraint("DistanceX", 2, 3, -1, 1, Q("2 in")),
    Sketcher.Constraint("DistanceY", -1, 1, 0, 3, Q("1.2625 in")),
])
pocket3 = body.newObject("PartDesign::Pocket", "Pocket002")
pocket3.Profile = sketch12
pocket3.Length = Q("0.1 in")
pocket3.Reversed = True

# Sketch on XZ plane
sketch13 = body.newObject("Sketcher::SketchObject", "Sketch012")
sketch13.AttachmentSupport = (doc.getObject("XZ_Plane"), [""])
sketch13.MapMode = "FlatFace"
sketch13.AttachmentOffset = App.Placement(V(0, 0, 0.3 * 25.4), App.Rotation())
sketch13.addGeometry([
    Part.LineSegment(V(-149.9, 1.3, 0), V(-149.9, 2.5, 0)),
    Part.LineSegment(V(-149.9, 2.5, 0), V(-170.2, 2.5, 0)),
    Part.LineSegment(V(-170.2, 2.5, 0), V(-170.2, 1.3, 0)),
    Part.LineSegment(V(-170.2, 1.3, 0), V(-149.9, 1.3, 0)),
], False)
sketch13.addConstraint([
    Sketcher.Constraint("Coincident", 0, 2, 1, 1),
    Sketcher.Constraint("Coincident", 1, 2, 2, 1),
    Sketcher.Constraint("Coincident", 2, 2, 3, 1),
    Sketcher.Constraint("Coincident", 3, 2, 0, 1),
    Sketcher.Constraint("Vertical", 0),
    Sketcher.Constraint("Horizontal", 1),
    Sketcher.Constraint("Vertical", 2),
    Sketcher.Constraint("Horizontal", 3),
    Sketcher.Constraint("DistanceX", 1, 2, 1, 1, Q("0.8 in")),
    Sketcher.Constraint("DistanceY", 0, 1, 0, 2, Q("0.05 in")),
    Sketcher.Constraint("DistanceX", 0, 2, -1, 1, Q("5.9 in")),
    Sketcher.Constraint("DistanceY", -1, 1, 0, 2, Q("0.1 in")),
])
pocket4 = body.newObject("PartDesign::Pocket", "Pocket003")
pocket4.Profile = sketch13
pocket4.Length = Q("0.05 in")

doc.recompute()
